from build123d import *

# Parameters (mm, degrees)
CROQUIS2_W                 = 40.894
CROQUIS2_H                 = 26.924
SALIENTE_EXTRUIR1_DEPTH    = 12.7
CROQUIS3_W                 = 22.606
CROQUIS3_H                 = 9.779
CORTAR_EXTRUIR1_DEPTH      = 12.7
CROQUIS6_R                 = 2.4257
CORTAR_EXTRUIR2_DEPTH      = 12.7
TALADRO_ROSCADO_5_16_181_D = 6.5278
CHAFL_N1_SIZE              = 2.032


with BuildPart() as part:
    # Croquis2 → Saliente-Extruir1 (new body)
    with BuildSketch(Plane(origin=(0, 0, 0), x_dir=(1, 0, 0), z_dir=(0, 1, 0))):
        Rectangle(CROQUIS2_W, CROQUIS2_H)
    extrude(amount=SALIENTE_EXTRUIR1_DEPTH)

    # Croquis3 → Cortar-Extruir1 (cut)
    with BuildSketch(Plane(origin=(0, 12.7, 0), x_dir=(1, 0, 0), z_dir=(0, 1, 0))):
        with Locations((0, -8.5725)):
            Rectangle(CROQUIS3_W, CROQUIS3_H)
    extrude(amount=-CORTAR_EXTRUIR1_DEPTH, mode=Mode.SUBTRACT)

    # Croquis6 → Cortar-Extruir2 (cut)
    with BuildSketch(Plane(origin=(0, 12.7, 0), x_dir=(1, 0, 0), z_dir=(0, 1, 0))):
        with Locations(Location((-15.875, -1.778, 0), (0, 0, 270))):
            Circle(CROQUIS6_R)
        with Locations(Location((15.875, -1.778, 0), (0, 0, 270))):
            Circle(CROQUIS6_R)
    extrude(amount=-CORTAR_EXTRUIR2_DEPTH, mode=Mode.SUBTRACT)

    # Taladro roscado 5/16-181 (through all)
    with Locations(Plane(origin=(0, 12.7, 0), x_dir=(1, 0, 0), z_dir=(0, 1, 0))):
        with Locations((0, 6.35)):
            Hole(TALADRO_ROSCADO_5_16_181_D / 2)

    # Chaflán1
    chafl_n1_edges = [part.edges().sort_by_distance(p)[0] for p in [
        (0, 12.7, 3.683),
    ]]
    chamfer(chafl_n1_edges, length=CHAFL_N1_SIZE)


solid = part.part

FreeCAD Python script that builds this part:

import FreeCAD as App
import Part
import Sketcher
Q = App.Units.Quantity


def edges_at(feature, points):
    """Names of the edges that pass closest to the given points."""
    edges = feature.Shape.Edges
    near = lambda p: min(range(len(edges)), key=lambda i: edges[i].distToShape(Part.Vertex(*p))[0])
    return sorted({f"Edge{near(p) + 1}" for p in points})

doc = App.newDocument("Part")
body = doc.addObject("PartDesign::Body", "Body")

# Sketch on XZ plane
sketch1 = body.newObject("Sketcher::SketchObject", "Sketch")
sketch1.AttachmentSupport = (doc.getObject("XZ_Plane"), [""])
sketch1.MapMode = "FlatFace"
sketch1.addGeometry([
    Part.LineSegment(App.Vector(-20, -13, 0), App.Vector(-20, 13, 0)),
    Part.LineSegment(App.Vector(-20, 13, 0), App.Vector(20, 13, 0)),
    Part.LineSegment(App.Vector(20, 13, 0), App.Vector(20, -13, 0)),
    Part.LineSegment(App.Vector(20, -13, 0), App.Vector(-20, -13, 0)),
], False)
sketch1.addConstraint([
    Sketcher.Constraint("Coincident", 0, 2, 1, 1),
    Sketcher.Constraint("Coincident", 1, 2, 2, 1),
    Sketcher.Constraint("Coincident", 2, 2, 3, 1),
    Sketcher.Constraint("Coincident", 3, 2, 0, 1),
    Sketcher.Constraint("Vertical", 0),
    Sketcher.Constraint("Horizontal", 1),
    Sketcher.Constraint("Vertical", 2),
    Sketcher.Constraint("Horizontal", 3),
    Sketcher.Constraint("Symmetric", 0, 2, 2, 2, -1, 1),
    Sketcher.Constraint("DistanceX", 1, 1, 1, 2, Q("1.61 in")),
    Sketcher.Constraint("DistanceY", 0, 1, 0, 2, Q("1.06 in")),
])
pad1 = body.newObject("PartDesign::Pad", "Pad")
pad1.Profile = sketch1
pad1.Length = Q("0.5 in")
pad1.Reversed = True

# Sketch on XZ plane
sketch2 = body.newObject("Sketcher::SketchObject", "Sketch001")
sketch2.AttachmentSupport = (doc.getObject("XZ_Plane"), [""])
sketch2.MapMode = "FlatFace"
sketch2.AttachmentOffset = App.Placement(App.Vector(0, 0, -0.5 * 25.4), App.Rotation())
sketch2.addGeometry([
    Part.LineSegment(App.Vector(-11, 4, 0), App.Vector(-11, 13, 0)),
    Part.LineSegment(App.Vector(-11, 13, 0), App.Vector(11, 13, 0)),
    Part.LineSegment(App.Vector(11, 13, 0), App.Vector(11, 4, 0)),
    Part.LineSegment(App.Vector(11, 4, 0), App.Vector(-11, 4, 0)),
], False)
sketch2.addConstraint([
    Sketcher.Constraint("Coincident", 0, 2, 1, 1),
    Sketcher.Constraint("Coincident", 1, 2, 2, 1),
    Sketcher.Constraint("Coincident", 2, 2, 3, 1),
    Sketcher.Constraint("Coincident", 3, 2, 0, 1),
    Sketcher.Constraint("Vertical", 0),
    Sketcher.Constraint("Horizontal", 1),
    Sketcher.Constraint("Vertical", 2),
    Sketcher.Constraint("Horizontal", 3),
    Sketcher.Constraint("DistanceX", 1, 1, 1, 2, Q("0.89 in")),
    Sketcher.Constraint("DistanceY", 0, 1, 0, 2, Q("0.385 in")),
    Sketcher.Constraint("DistanceY", -1, 1, 0, 2, Q("0.53 in")),
    Sketcher.Constraint("DistanceX", 0, 2, -1, 1, Q("0.445 in")),
])
pocket1 = body.newObject("PartDesign::Pocket", "Pocket")
pocket1.Profile = sketch2
pocket1.Length = Q("0.5 in")
pocket1.Reversed = True

# Sketch on XZ plane
sketch3 = body.newObject("Sketcher::SketchObject", "Sketch002")
sketch3.AttachmentSupport = (doc.getObject("XZ_Plane"), [""])
sketch3.MapMode = "FlatFace"
sketch3.AttachmentOffset = App.Placement(App.Vector(0, 0, -0.5 * 25.4), App.Rotation())
sketch3.addGeometry([
    Part.Circle(App.Vector(-15.9, 1.8, 0), App.Vector(0, 0, 1), 2.4),
    Part.Circle(App.Vector(15.9, 1.8, 0), App.Vector(0, 0, 1), 2.4),
], False)
sketch3.addConstraint([
    Sketcher.Constraint("Equal", 0, 1),
    Sketcher.Constraint("Symmetric", 0, 3, 1, 3, -2),
    Sketcher.Constraint("Diameter", 0, Q("0.191 in")),
    Sketcher.Constraint("DistanceY", -1, 1, 0, 3, Q("0.07 in")),
    Sketcher.Constraint("DistanceX", 0, 3, 1, 3, Q("1.25 in")),
])
pocket2 = body.newObject("PartDesign::Pocket", "Pocket001")
pocket2.Profile = sketch3
pocket2.Length = Q("0.5 in")
pocket2.Reversed = True

# Sketch on XZ plane
sketch4 = body.newObject("Sketcher::SketchObject", "Sketch003")
sketch4.AttachmentSupport = (doc.getObject("XZ_Plane"), [""])
sketch4.MapMode = "FlatFace"
sketch4.AttachmentOffset = App.Placement(App.Vector(0, 0, -0.5 * 25.4), App.Rotation())
sketch4.addGeometry(Part.Circle(App.Vector(0, -6.3, 0), App.Vector(0, 0, 1), 3.3), False)
sketch4.addConstraint([
    Sketcher.Constraint("PointOnObject", 0, 3, -2),
    Sketcher.Constraint("Diameter", 0, Q("0.257 in")),
    Sketcher.Constraint("DistanceY", 0, 3, -1, 1, Q("0.25 in")),
])
doc.recompute()
hole = body.newObject("PartDesign::Hole", "Hole")
hole.Profile = sketch4
hole.ThreadType = "None"
hole.Diameter = Q("0.257 in")
hole.DepthType = "ThroughAll"
hole.Reversed = True
doc.recompute()

chamfer = body.newObject("PartDesign::Chamfer", "Chamfer")
chamfer.Base = (hole, edges_at(hole, [(0, 12.7, 3.683)]))
chamfer.Size = Q("0.08 in")

doc.recompute()
